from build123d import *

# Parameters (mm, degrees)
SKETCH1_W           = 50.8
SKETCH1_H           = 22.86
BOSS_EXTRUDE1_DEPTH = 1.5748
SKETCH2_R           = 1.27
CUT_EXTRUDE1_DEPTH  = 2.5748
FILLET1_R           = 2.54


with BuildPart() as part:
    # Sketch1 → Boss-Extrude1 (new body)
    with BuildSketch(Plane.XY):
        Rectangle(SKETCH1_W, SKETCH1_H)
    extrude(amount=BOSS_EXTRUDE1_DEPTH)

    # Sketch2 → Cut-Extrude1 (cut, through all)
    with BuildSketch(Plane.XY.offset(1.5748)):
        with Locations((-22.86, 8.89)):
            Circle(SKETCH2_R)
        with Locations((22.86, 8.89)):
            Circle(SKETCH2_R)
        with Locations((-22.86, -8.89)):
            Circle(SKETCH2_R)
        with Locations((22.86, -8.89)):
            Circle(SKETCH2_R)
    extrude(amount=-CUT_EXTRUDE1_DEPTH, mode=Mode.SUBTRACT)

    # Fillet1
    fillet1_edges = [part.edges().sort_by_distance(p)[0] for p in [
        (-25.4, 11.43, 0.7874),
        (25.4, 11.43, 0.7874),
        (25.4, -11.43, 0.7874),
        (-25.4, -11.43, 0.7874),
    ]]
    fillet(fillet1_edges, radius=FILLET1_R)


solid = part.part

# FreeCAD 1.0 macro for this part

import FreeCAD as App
import Part
import Sketcher

V = App.Vector
Q = App.Units.Quantity


def edges_at(feature, points):
    """Names of the edges that pass closest to the given points."""
    edges = feature.Shape.Edges
    near = lambda p: min(range(len(edges)), key=lambda i: edges[i].distToShape(Part.Vertex(*p))[0])
    return sorted({f"Edge{near(p) + 1}" for p in points})

doc = App.newDocument("Part")
body = doc.addObject("PartDesign::Body", "Body")

# Sketch on XY plane
sketch1 = body.newObject("Sketcher::SketchObject", "Sketch")
sketch1.AttachmentSupport = (doc.getObject("XY_Plane"), [""])
sketch1.MapMode = "FlatFace"
sketch1.addGeometry([
    Part.LineSegment(V(-25, 11, 0), V(-25, -11, 0)),
    Part.LineSegment(V(-25, -11, 0), V(25, -11, 0)),
    Part.LineSegment(V(25, -11, 0), V(25, 11, 0)),
    Part.LineSegment(V(25, 11, 0), V(-25, 11, 0)),
], False)
sketch1.addConstraint([
    Sketcher.Constraint("Coincident", 0, 2, 1, 1),
    Sketcher.Constraint("Coincident", 1, 2, 2, 1),
    Sketcher.Constraint("Coincident", 2, 2, 3, 1),
    Sketcher.Constraint("Coincident", 3, 2, 0, 1),
    Sketcher.Constraint("Vertical", 0),
    Sketcher.Constraint("Horizontal", 1),
    Sketcher.Constraint("Vertical", 2),
    Sketcher.Constraint("Horizontal", 3),
    Sketcher.Constraint("Symmetric", 0, 2, 2, 2, -1, 1),
    Sketcher.Constraint("DistanceX", 1, 1, 1, 2, Q("2 in")),
    Sketcher.Constraint("DistanceY", 0, 2, 0, 1, Q("0.9 in")),
])
pad1 = body.newObject("PartDesign::Pad", "Pad")
pad1.Profile = sketch1
pad1.Length = Q("0.062 in")

# Sketch on XY plane
sketch2 = body.newObject("Sketcher::SketchObject", "Sketch001")
sketch2.AttachmentSupport = (doc.getObject("XY_Plane"), [""])
sketch2.MapMode = "FlatFace"
sketch2.AttachmentOffset = App.Placement(V(0, 0, 0.062 * 25.4), App.Rotation())
sketch2.addGeometry([
    Part.Circle(V(-22.9, 8.9, 0), V(0, 0, 1), 1.3),
    Part.Circle(V(22.9, 8.9, 0), V(0, 0, 1), 1.3),
    Part.Circle(V(-22.9, -8.9, 0), V(0, 0, 1), 1.3),
    Part.Circle(V(22.9, -8.9, 0), V(0, 0, 1), 1.3),
], False)
sketch2.addConstraint([
    Sketcher.Constraint("Equal", 0, 1),
    Sketcher.Constraint("Equal", 1, 2),
    Sketcher.Constraint("Equal", 2, 3),
    Sketcher.Constraint("Symmetric", 1, 3, 2, 3, -1, 1),
    Sketcher.Constraint("Symmetric", 0, 3, 3, 3, -1, 1),
    Sketcher.Constraint("Symmetric", 0, 3, 1, 3, -2),
    Sketcher.Constraint("Diameter", 0, Q("0.1 in")),
    Sketcher.Constraint("DistanceX", 0, 3, -1, 1, Q("0.9 in")),
    Sketcher.Constraint("DistanceY", 2, 3, 0, 3, Q("0.7 in")),
])
pocket1 = body.newObject("PartDesign::Pocket", "Pocket")
pocket1.Profile = sketch2
pocket1.Type = "ThroughAll"
doc.recompute()

fillet = body.newObject("PartDesign::Fillet", "Fillet")
fillet.Base = (pocket1, edges_at(pocket1, [
    (-25.4, 11.43, 0.787),
    (25.4, 11.43, 0.787),
    (25.4, -11.43, 0.787),
    (-25.4, -11.43, 0.787),
]))
fillet.Radius = Q("0.1 in")

doc.recompute()
